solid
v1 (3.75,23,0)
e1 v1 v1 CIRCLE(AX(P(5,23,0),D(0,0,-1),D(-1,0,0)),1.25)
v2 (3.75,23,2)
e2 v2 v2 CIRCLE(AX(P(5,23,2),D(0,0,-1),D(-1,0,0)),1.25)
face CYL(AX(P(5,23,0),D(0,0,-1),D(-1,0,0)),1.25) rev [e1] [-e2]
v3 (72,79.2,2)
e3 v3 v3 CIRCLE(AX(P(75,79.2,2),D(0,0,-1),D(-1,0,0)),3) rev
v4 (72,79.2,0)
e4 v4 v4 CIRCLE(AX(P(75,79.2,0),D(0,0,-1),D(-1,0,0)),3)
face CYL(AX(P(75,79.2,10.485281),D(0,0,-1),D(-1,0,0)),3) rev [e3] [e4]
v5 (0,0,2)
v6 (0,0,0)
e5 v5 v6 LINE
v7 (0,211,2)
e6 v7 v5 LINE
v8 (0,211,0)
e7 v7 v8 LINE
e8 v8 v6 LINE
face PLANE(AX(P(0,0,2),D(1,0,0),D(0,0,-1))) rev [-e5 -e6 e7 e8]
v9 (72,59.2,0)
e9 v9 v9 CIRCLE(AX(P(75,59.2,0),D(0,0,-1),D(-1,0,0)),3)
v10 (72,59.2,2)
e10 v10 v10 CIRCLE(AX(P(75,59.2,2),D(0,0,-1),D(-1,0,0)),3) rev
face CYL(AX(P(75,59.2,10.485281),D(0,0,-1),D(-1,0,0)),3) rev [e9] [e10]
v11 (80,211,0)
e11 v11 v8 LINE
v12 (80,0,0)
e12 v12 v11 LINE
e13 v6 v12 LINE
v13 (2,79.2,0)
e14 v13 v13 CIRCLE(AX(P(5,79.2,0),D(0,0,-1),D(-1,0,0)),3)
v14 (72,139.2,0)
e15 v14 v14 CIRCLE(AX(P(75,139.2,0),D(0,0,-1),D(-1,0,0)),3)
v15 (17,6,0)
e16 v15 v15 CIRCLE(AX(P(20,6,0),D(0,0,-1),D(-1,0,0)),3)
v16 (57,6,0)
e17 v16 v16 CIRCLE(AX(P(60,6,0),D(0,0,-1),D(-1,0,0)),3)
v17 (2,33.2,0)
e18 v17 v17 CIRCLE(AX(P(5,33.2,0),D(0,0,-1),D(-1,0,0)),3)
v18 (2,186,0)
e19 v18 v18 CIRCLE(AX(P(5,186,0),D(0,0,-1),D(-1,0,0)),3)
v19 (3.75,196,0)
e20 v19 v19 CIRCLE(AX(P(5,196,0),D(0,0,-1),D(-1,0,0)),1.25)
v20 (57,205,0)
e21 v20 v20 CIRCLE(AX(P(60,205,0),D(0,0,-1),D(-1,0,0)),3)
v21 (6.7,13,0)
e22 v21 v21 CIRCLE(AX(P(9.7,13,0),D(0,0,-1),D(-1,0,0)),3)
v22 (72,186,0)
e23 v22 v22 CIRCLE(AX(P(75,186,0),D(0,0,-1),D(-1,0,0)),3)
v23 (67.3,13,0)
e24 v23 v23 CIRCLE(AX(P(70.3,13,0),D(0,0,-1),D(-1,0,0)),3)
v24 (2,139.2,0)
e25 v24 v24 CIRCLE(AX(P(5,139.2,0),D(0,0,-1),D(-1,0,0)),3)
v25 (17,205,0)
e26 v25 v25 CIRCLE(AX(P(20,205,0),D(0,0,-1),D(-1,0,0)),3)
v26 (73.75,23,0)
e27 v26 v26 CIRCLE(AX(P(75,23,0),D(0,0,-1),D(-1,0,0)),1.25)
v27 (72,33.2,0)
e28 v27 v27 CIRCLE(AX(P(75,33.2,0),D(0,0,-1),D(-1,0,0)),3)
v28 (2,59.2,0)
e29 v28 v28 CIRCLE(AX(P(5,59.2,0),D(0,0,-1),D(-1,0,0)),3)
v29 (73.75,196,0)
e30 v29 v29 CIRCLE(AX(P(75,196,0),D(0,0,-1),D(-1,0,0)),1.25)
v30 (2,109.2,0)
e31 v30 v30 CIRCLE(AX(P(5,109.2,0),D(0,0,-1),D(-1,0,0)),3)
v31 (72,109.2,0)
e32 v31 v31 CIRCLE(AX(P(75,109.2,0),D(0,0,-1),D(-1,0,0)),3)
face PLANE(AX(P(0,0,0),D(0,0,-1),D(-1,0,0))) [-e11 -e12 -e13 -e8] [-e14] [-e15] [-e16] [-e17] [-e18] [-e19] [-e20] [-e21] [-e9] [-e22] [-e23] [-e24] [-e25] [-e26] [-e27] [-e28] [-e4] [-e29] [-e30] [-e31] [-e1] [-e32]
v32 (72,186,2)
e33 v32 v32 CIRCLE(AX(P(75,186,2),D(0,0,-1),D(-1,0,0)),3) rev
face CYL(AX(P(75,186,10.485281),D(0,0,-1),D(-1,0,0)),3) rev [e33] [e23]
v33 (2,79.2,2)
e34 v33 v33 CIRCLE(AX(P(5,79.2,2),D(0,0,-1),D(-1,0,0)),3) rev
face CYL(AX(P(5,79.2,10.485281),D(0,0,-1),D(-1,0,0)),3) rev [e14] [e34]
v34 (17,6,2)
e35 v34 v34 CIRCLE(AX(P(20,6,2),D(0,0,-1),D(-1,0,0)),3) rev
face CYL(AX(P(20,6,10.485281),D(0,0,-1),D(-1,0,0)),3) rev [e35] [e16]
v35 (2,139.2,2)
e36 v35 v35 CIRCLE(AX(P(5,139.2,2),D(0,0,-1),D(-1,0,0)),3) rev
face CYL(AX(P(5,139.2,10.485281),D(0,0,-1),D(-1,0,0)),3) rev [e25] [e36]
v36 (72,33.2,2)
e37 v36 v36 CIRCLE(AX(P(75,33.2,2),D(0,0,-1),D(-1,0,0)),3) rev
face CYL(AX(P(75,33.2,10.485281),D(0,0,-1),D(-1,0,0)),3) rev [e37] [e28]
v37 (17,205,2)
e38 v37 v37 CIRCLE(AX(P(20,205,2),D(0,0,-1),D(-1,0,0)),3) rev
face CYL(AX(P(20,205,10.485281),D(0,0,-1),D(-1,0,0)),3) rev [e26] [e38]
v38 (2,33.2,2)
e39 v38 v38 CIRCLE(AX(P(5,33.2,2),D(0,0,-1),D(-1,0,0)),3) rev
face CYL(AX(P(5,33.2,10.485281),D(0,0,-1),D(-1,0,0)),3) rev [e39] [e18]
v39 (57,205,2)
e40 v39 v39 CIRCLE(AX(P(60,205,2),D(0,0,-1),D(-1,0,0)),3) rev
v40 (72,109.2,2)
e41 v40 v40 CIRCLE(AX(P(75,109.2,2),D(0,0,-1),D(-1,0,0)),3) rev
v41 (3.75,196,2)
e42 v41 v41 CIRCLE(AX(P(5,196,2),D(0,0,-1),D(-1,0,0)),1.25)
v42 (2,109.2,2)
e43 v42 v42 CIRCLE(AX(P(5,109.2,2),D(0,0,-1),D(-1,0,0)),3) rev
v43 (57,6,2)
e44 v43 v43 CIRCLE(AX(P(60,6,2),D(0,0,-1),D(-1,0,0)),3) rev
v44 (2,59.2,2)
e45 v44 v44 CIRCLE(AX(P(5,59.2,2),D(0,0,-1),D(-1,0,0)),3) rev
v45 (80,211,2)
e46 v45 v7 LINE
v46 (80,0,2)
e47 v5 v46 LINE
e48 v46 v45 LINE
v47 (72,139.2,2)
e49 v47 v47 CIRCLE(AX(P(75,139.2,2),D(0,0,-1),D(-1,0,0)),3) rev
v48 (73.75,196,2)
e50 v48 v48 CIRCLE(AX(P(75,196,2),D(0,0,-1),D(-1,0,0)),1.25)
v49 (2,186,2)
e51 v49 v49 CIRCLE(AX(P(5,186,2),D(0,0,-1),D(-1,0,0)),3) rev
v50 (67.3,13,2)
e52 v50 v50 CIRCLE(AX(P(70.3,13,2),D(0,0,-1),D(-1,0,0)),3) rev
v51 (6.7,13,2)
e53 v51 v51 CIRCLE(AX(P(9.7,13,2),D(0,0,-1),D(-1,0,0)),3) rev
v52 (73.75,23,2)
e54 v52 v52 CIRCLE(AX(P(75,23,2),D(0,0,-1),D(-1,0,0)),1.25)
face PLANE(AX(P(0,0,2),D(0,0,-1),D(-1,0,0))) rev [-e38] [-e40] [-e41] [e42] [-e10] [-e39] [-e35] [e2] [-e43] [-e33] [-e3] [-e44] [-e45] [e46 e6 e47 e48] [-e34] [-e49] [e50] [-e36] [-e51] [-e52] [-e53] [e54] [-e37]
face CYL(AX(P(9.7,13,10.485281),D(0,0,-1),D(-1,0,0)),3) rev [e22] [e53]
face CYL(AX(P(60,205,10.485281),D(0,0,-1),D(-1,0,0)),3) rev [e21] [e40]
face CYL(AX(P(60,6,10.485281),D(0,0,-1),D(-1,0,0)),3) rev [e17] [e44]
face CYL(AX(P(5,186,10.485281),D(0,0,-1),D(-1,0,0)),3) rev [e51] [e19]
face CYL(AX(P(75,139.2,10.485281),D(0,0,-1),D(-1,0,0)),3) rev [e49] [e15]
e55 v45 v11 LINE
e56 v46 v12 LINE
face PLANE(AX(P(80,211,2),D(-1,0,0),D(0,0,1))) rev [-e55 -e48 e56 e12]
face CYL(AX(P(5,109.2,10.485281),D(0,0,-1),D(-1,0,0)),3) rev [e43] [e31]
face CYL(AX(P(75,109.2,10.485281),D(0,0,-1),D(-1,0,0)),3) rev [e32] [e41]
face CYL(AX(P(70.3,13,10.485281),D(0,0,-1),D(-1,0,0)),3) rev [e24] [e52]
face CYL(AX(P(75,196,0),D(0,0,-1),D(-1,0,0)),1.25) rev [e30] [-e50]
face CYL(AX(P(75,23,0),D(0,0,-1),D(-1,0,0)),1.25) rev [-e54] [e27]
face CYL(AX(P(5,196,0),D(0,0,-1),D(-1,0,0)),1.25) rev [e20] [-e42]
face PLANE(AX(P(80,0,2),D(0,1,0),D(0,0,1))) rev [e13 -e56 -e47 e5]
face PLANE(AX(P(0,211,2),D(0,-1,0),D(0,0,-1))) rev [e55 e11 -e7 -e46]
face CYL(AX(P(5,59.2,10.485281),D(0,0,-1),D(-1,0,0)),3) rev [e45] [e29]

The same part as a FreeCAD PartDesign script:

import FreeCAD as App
import Part
import Sketcher
from FreeCAD import Vector
Q = App.Units.Quantity

doc = App.newDocument("Part")
body = doc.addObject("PartDesign::Body", "Body")

sketch1 = doc.addObject("Sketcher::SketchObject", "Sketch")
body.addObject(sketch1)
sketch1.AttachmentSupport = (doc.XY_Plane, [""])
sketch1.MapMode = "FlatFace"
sketch1.addGeometry([
    Part.LineSegment(Vector(0, 211, 0), Vector(0, 0, 0)),
    Part.LineSegment(Vector(0, 0, 0), Vector(80, 0, 0)),
    Part.LineSegment(Vector(80, 0, 0), Vector(80, 211, 0)),
    Part.LineSegment(Vector(80, 211, 0), Vector(0, 211, 0)),
], False)
sketch1.addConstraint([
    Sketcher.Constraint("Coincident", 0, 2, 1, 1),
    Sketcher.Constraint("Coincident", 1, 2, 2, 1),
    Sketcher.Constraint("Coincident", 2, 2, 3, 1),
    Sketcher.Constraint("Coincident", 3, 2, 0, 1),
    Sketcher.Constraint("Vertical", 0),
    Sketcher.Constraint("Horizontal", 1),
    Sketcher.Constraint("Vertical", 2),
    Sketcher.Constraint("Horizontal", 3),
    Sketcher.Constraint("Coincident", 0, 2, -1, 1),
    Sketcher.Constraint("DistanceX", 1, 1, 1, 2, Q("80 mm")),
    Sketcher.Constraint("DistanceY", 0, 2, 0, 1, Q("211 mm")),
])
pad1 = doc.addObject("PartDesign::Pad", "Pad")
body.addObject(pad1)
pad1.Profile = sketch1
pad1.Length = 2

sketch2 = doc.addObject("Sketcher::SketchObject", "Sketch001")
body.addObject(sketch2)
sketch2.AttachmentSupport = (doc.XY_Plane, [""])
sketch2.MapMode = "FlatFace"
sketch2.addGeometry([
    Part.Circle(Vector(75, 196, 0), Vector(0, 0, 1), 1.2),
    Part.Circle(Vector(5, 196, 0), Vector(0, 0, 1), 1.2),
    Part.Circle(Vector(75, 23, 0), Vector(0, 0, 1), 1.2),
    Part.Circle(Vector(5, 23, 0), Vector(0, 0, 1), 1.2),
], False)
sketch2.addConstraint([
    Sketcher.Constraint("Equal", 0, 1),
    Sketcher.Constraint("Equal", 1, 2),
    Sketcher.Constraint("Equal", 2, 3),
    Sketcher.Constraint("Horizontal", 0, 3, 1, 3),
    Sketcher.Constraint("Horizontal", 2, 3, 3, 3),
    Sketcher.Constraint("Vertical", 0, 3, 2, 3),
    Sketcher.Constraint("Vertical", 1, 3, 3, 3),
    Sketcher.Constraint("Diameter", 0, Q("2.5 mm")),
    Sketcher.Constraint("DistanceX", -1, 1, 0, 3, Q("75 mm")),
    Sketcher.Constraint("DistanceY", -1, 1, 0, 3, Q("196 mm")),
    Sketcher.Constraint("DistanceX", -1, 1, 1, 3, Q("5 mm")),
    Sketcher.Constraint("DistanceY", -1, 1, 2, 3, Q("23 mm")),
])
doc.recompute()
hole = doc.addObject("PartDesign::Hole", "Hole")
body.addObject(hole)
hole.Profile = sketch2
hole.ThreadType = "None"
hole.Diameter = 2.5
hole.DepthType = "Dimension"
hole.Depth = 10
hole.DrillPoint = "Angled"
hole.DrillPointAngle = 118
hole.Reversed = True

sketch3 = doc.addObject("Sketcher::SketchObject", "Sketch002")
body.addObject(sketch3)
sketch3.AttachmentSupport = (doc.XY_Plane, [""])
sketch3.MapMode = "FlatFace"
sketch3.addGeometry([
    Part.Circle(Vector(75, 186, 0), Vector(0, 0, 1), 3),
    Part.Circle(Vector(75, 139.2, 0), Vector(0, 0, 1), 3),
    Part.Circle(Vector(75, 109.2, 0), Vector(0, 0, 1), 3),
    Part.Circle(Vector(75, 79.2, 0), Vector(0, 0, 1), 3),
    Part.Circle(Vector(75, 59.2, 0), Vector(0, 0, 1), 3),
    Part.Circle(Vector(75, 33.2, 0), Vector(0, 0, 1), 3),
    Part.Circle(Vector(5, 186, 0), Vector(0, 0, 1), 3),
    Part.Circle(Vector(5, 139.2, 0), Vector(0, 0, 1), 3),
    Part.Circle(Vector(5, 109.2, 0), Vector(0, 0, 1), 3),
    Part.Circle(Vector(5, 79.2, 0), Vector(0, 0, 1), 3),
    Part.Circle(Vector(5, 59.2, 0), Vector(0, 0, 1), 3),
    Part.Circle(Vector(5, 33.2, 0), Vector(0, 0, 1), 3),
    Part.Circle(Vector(70.3, 13, 0), Vector(0, 0, 1), 3),
    Part.Circle(Vector(60, 205, 0), Vector(0, 0, 1), 3),
    Part.Circle(Vector(20, 205, 0), Vector(0, 0, 1), 3),
    Part.Circle(Vector(60, 6, 0), Vector(0, 0, 1), 3),
    Part.Circle(Vector(20, 6, 0), Vector(0, 0, 1), 3),
    Part.Circle(Vector(9.7, 13, 0), Vector(0, 0, 1), 3),
], False)
sketch3.addConstraint([
    Sketcher.Constraint("Equal", 0, 1),
    Sketcher.Constraint("Equal", 1, 2),
    Sketcher.Constraint("Equal", 2, 3),
    Sketcher.Constraint("Equal", 3, 4),
    Sketcher.Constraint("Equal", 4, 5),
    Sketcher.Constraint("Equal", 5, 6),
    Sketcher.Constraint("Equal", 6, 7),
    Sketcher.Constraint("Equal", 7, 8),
    Sketcher.Constraint("Equal", 8, 9),
    Sketcher.Constraint("Equal", 9, 10),
    Sketcher.Constraint("Equal", 10, 11),
    Sketcher.Constraint("Equal", 11, 12),
    Sketcher.Constraint("Equal", 12, 13),
    Sketcher.Constraint("Equal", 13, 14),
    Sketcher.Constraint("Equal", 14, 15),
    Sketcher.Constraint("Equal", 15, 16),
    Sketcher.Constraint("Equal", 16, 17),
    Sketcher.Constraint("Horizontal", 0, 3, 6, 3),
    Sketcher.Constraint("Horizontal", 1, 3, 7, 3),
    Sketcher.Constraint("Horizontal", 2, 3, 8, 3),
    Sketcher.Constraint("Horizontal", 3, 3, 9, 3),
    Sketcher.Constraint("Horizontal", 4, 3, 10, 3),
    Sketcher.Constraint("Horizontal", 5, 3, 11, 3),
    Sketcher.Constraint("Horizontal", 13, 3, 14, 3),
    Sketcher.Constraint("Horizontal", 15, 3, 16, 3),
    Sketcher.Constraint("Horizontal", 12, 3, 17, 3),
    Sketcher.Constraint("Vertical", 0, 3, 1, 3),
    Sketcher.Constraint("Vertical", 1, 3, 2, 3),
    Sketcher.Constraint("Vertical", 2, 3, 3, 3),
    Sketcher.Constraint("Vertical", 3, 3, 4, 3),
    Sketcher.Constraint("Vertical", 4, 3, 5, 3),
    Sketcher.Constraint("Vertical", 6, 3, 7, 3),
    Sketcher.Constraint("Vertical", 7, 3, 8, 3),
    Sketcher.Constraint("Vertical", 8, 3, 9, 3),
    Sketcher.Constraint("Vertical", 9, 3, 10, 3),
    Sketcher.Constraint("Vertical", 10, 3, 11, 3),
    Sketcher.Constraint("Vertical", 13, 3, 15, 3),
    Sketcher.Constraint("Vertical", 14, 3, 16, 3),
    Sketcher.Constraint("Diameter", 0, Q("6 mm")),
    Sketcher.Constraint("DistanceX", -1, 1, 0, 3, Q("75 mm")),
    Sketcher.Constraint("DistanceY", -1, 1, 0, 3, Q("186 mm")),
    Sketcher.Constraint("DistanceX", -1, 1, 6, 3, Q("5 mm")),
    Sketcher.Constraint("DistanceY", -1, 1, 12, 3, Q("13 mm")),
    Sketcher.Constraint("DistanceX", -1, 1, 13, 3, Q("60 mm")),
    Sketcher.Constraint("DistanceY", -1, 1, 13, 3, Q("205 mm")),
    Sketcher.Constraint("DistanceX", -1, 1, 14, 3, Q("20 mm")),
    Sketcher.Constraint("DistanceY", -1, 1, 15, 3, Q("6 mm")),
    Sketcher.Constraint("DistanceY", 2, 3, 1, 3, Q("30 mm")),
    Sketcher.Constraint("DistanceY", 3, 3, 2, 3, Q("30 mm")),
    Sketcher.Constraint("DistanceY", 4, 3, 3, 3, Q("20 mm")),
    Sketcher.Constraint("DistanceY", 5, 3, 4, 3, Q("26 mm")),
    Sketcher.Constraint("DistanceY", -1, 1, 1, 3, Q("139.2 mm")),
    Sketcher.Constraint("DistanceX", -1, 1, 12, 3, Q("70.3 mm")),
    Sketcher.Constraint("DistanceX", -1, 1, 17, 3, Q("9.7 mm")),
])
pocket1 = doc.addObject("PartDesign::Pocket", "Pocket")
body.addObject(pocket1)
pocket1.Profile = sketch3
pocket1.Length = 2
pocket1.Reversed = True

doc.recompute()
